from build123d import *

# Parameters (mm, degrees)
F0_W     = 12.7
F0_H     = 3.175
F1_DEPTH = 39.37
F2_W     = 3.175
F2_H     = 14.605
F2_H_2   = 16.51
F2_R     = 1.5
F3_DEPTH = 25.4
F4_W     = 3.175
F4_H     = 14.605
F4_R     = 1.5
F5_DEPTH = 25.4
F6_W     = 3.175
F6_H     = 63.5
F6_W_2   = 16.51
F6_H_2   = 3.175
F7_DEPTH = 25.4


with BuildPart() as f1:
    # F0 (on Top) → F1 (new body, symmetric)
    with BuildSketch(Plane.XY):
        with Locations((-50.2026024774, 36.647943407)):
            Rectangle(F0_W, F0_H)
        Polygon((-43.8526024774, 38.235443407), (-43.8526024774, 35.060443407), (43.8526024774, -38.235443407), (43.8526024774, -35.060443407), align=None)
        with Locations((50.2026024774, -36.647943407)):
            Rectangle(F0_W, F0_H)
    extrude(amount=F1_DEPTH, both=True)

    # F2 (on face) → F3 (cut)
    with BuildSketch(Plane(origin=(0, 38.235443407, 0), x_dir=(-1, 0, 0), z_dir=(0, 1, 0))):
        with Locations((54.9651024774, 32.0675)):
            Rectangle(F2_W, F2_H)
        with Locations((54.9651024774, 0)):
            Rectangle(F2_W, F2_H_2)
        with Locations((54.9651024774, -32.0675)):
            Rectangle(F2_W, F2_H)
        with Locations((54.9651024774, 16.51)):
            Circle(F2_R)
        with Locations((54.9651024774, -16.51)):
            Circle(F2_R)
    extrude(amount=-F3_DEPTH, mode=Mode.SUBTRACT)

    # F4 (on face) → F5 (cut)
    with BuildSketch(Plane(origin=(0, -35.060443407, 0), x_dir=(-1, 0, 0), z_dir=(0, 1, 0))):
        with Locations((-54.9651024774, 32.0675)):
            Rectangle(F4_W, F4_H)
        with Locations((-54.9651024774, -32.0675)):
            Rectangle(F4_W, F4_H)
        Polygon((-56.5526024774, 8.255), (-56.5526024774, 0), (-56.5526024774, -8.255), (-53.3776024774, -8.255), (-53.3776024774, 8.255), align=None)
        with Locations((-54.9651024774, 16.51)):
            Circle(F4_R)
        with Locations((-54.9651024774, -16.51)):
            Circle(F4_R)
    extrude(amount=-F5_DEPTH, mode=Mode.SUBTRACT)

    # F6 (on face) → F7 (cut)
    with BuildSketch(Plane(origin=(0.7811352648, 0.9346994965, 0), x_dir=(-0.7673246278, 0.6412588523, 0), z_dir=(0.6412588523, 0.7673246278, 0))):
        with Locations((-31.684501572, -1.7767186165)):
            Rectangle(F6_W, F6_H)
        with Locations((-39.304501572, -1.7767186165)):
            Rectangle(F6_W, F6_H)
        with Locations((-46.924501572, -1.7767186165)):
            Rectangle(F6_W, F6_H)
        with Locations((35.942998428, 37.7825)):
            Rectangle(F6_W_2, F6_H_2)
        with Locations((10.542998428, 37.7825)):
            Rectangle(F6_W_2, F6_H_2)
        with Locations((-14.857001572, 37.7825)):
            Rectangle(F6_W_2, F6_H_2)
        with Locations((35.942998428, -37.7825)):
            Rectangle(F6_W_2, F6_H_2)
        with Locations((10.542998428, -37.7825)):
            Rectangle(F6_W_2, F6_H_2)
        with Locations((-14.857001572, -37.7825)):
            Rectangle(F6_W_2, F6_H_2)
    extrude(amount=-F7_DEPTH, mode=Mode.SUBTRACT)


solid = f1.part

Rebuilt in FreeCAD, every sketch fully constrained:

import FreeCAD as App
import Part
import Sketcher
Q = App.Units.Quantity


def add_polygon(sketch, points):
    """Adds a closed chain of lines whose ends are joined by coincident constraints."""
    first, n = sketch.GeometryCount, len(points)
    for a, b in zip(points, points[1:] + points[:1]):
        sketch.addGeometry(Part.LineSegment(App.Vector(*a, 0), App.Vector(*b, 0)), False)
    for i in range(n):
        sketch.addConstraint(Sketcher.Constraint("Coincident", first + i, 2, first + (i + 1) % n, 1))

doc = App.newDocument("Part")
body = doc.addObject("PartDesign::Body", "Body")

# Sketch on XY plane
sketch1 = body.newObject("Sketcher::SketchObject", "Sketch")
sketch1.AttachmentSupport = (doc.getObject("XY_Plane"), [""])
sketch1.MapMode = "FlatFace"
add_polygon(sketch1, [(-56.6, 38.2), (-56.6, 35.1), (-43.9, 35.1), (43.9, -38.2), (56.6, -38.2), (56.6, -35.1), (43.9, -35.1), (-43.9, 38.2)])  # lines 0-7
sketch1.addConstraint([
    Sketcher.Constraint("Vertical", 0),
    Sketcher.Constraint("Horizontal", 1),
    Sketcher.Constraint("Horizontal", 3),
    Sketcher.Constraint("Vertical", 4),
    Sketcher.Constraint("Horizontal", 5),
    Sketcher.Constraint("Horizontal", 7),
    Sketcher.Constraint("Symmetric", 0, 2, 4, 2, -1, 1),
    Sketcher.Constraint("Symmetric", 2, 2, 6, 2, -1, 1),
    Sketcher.Constraint("Parallel", 2, 6),
    Sketcher.Constraint("Vertical", 2, 2, 5, 2),
    Sketcher.Constraint("DistanceX", 1, 1, 1, 2, Q("0.5 in")),
    Sketcher.Constraint("Distance", 2, Q("4.5 in")),
    Sketcher.Constraint("DistanceY", 0, 2, 0, 1, Q("0.125 in")),
    Sketcher.Constraint("DistanceX", 0, 2, -1, 1, 56.552602),
])
pad1 = body.newObject("PartDesign::Pad", "Pad")
pad1.Profile = sketch1
pad1.Length = Q("3.1 in")
pad1.Midplane = True

# Sketch on XZ plane
sketch2 = body.newObject("Sketcher::SketchObject", "Sketch001")
sketch2.AttachmentSupport = (doc.getObject("XZ_Plane"), [""])
sketch2.MapMode = "FlatFace"
sketch2.AttachmentOffset = App.Placement(App.Vector(0, 0, -38.235443), App.Rotation())
add_polygon(sketch2, [(-53.4, 39.4), (-53.4, 24.8), (-56.6, 24.8), (-56.6, 39.4)])  # lines 0-3
add_polygon(sketch2, [(-53.4, 8.3), (-53.4, -8.3), (-56.6, -8.3), (-56.6, 8.3)])  # lines 4-7
add_polygon(sketch2, [(-53.4, -24.8), (-53.4, -39.4), (-56.6, -39.4), (-56.6, -24.8)])  # lines 8-11
sketch2.addGeometry(Part.Circle(App.Vector(-55, 16.5, 0), App.Vector(0, 0, 1), 1.5), False)  # 12
sketch2.addGeometry(Part.Circle(App.Vector(-55, -16.5, 0), App.Vector(0, 0, 1), 1.5), False)  # 13
sketch2.addConstraint([
    Sketcher.Constraint("Vertical", 0),
    Sketcher.Constraint("Horizontal", 1),
    Sketcher.Constraint("Vertical", 2),
    Sketcher.Constraint("Horizontal", 3),
    Sketcher.Constraint("Vertical", 4),
    Sketcher.Constraint("Horizontal", 5),
    Sketcher.Constraint("Vertical", 6),
    Sketcher.Constraint("Horizontal", 7),
    Sketcher.Constraint("Vertical", 8),
    Sketcher.Constraint("Horizontal", 9),
    Sketcher.Constraint("Vertical", 10),
    Sketcher.Constraint("Horizontal", 11),
    Sketcher.Constraint("Equal", 12, 13),
    Sketcher.Constraint("Symmetric", 12, 3, 13, 3, -1),
    Sketcher.Constraint("Symmetric", 3, 2, 8, 2, -1),
    Sketcher.Constraint("Symmetric", 1, 2, 10, 2, -1),
    Sketcher.Constraint("Vertical", 3, 2, 4, 2),
    Sketcher.Constraint("Vertical", 2, 2, 5, 2),
    Sketcher.Constraint("DistanceY", 4, 2, 4, 1, Q("0.65 in")),
    Sketcher.Constraint("DistanceY", 13, 3, 12, 3, Q("1.3 in")),
    Sketcher.Constraint("DistanceY", 12, 3, 2, 2, Q("0.9 in")),
    Sketcher.Constraint("DistanceY", 4, 2, 0, 2, Q("1.3 in")),
    Sketcher.Constraint("Diameter", 12, 3.0),
    Sketcher.Constraint("DistanceX", 1, 2, 1, 1, Q("0.125 in")),
    Sketcher.Constraint("DistanceY", 0, 2, 0, 1, Q("0.575 in")),
    Sketcher.Constraint("DistanceX", 12, 3, 0, 2, Q("0.0625 in")),
    Sketcher.Constraint("DistanceX", 12, 3, -1, 1, 54.965102),
])
pocket1 = body.newObject("PartDesign::Pocket", "Pocket")
pocket1.Profile = sketch2
pocket1.Length = Q("1 in")
pocket1.Reversed = True

# Sketch on XZ plane
sketch3 = body.newObject("Sketcher::SketchObject", "Sketch002")
sketch3.AttachmentSupport = (doc.getObject("XZ_Plane"), [""])
sketch3.MapMode = "FlatFace"
sketch3.AttachmentOffset = App.Placement(App.Vector(0, 0, 35.060443), App.Rotation())
add_polygon(sketch3, [(56.6, 39.4), (56.6, 24.8), (53.4, 24.8), (53.4, 39.4)])  # lines 0-3
add_polygon(sketch3, [(56.6, -24.8), (56.6, -39.4), (53.4, -39.4), (53.4, -24.8)])  # lines 4-7
add_polygon(sketch3, [(56.6, 8.3), (56.6, -8.3), (53.4, -8.3), (53.4, 8.3)])  # lines 8-11
sketch3.addGeometry(Part.Circle(App.Vector(55, 16.5, 0), App.Vector(0, 0, 1), 1.5), False)  # 12
sketch3.addGeometry(Part.Circle(App.Vector(55, -16.5, 0), App.Vector(0, 0, 1), 1.5), False)  # 13
sketch3.addConstraint([
    Sketcher.Constraint("Vertical", 0),
    Sketcher.Constraint("Horizontal", 1),
    Sketcher.Constraint("Vertical", 2),
    Sketcher.Constraint("Horizontal", 3),
    Sketcher.Constraint("Vertical", 4),
    Sketcher.Constraint("Horizontal", 5),
    Sketcher.Constraint("Vertical", 6),
    Sketcher.Constraint("Horizontal", 7),
    Sketcher.Constraint("Vertical", 8),
    Sketcher.Constraint("Horizontal", 9),
    Sketcher.Constraint("Vertical", 10),
    Sketcher.Constraint("Horizontal", 11),
    Sketcher.Constraint("Equal", 12, 13),
    Sketcher.Constraint("Symmetric", 12, 3, 13, 3, -1),
    Sketcher.Constraint("Symmetric", 3, 2, 4, 2, -1),
    Sketcher.Constraint("Symmetric", 1, 2, 6, 2, -1),
    Sketcher.Constraint("Vertical", 7, 2, 8, 2),
    Sketcher.Constraint("Vertical", 6, 2, 9, 2),
    Sketcher.Constraint("DistanceY", 8, 2, 8, 1, Q("0.65 in")),
    Sketcher.Constraint("DistanceY", 13, 3, 12, 3, Q("1.3 in")),
    Sketcher.Constraint("DistanceY", 12, 3, 2, 2, Q("0.9 in")),
    Sketcher.Constraint("Diameter", 12, 3.0),
    Sketcher.Constraint("DistanceX", 1, 2, 1, 1, Q("0.125 in")),
    Sketcher.Constraint("DistanceY", 0, 2, 0, 1, Q("0.575 in")),
    Sketcher.Constraint("DistanceY", 7, 2, 8, 2, Q("0.65 in")),
    Sketcher.Constraint("DistanceX", 12, 3, 0, 2, Q("0.0625 in")),
    Sketcher.Constraint("DistanceX", -1, 1, 12, 3, 54.965102),
])
pocket2 = body.newObject("PartDesign::Pocket", "Pocket001")
pocket2.Profile = sketch3
pocket2.Length = Q("1 in")
pocket2.Reversed = True

# Sketch on an angled plane
sketch4 = body.newObject("Sketcher::SketchObject", "Sketch003")
sketch4.Placement = App.Placement(App.Vector(0.781135, 0.934699, 0), App.Rotation(App.Vector(-0.767324628, 0.641258852, 0), App.Vector(0, 0, 1), App.Vector(0.641258852, 0.767324628, 0), "ZXY"))
add_polygon(sketch4, [(-33.3, 30), (-33.3, -33.5), (-30.1, -33.5), (-30.1, 30)])  # lines 0-3
add_polygon(sketch4, [(-40.9, 30), (-40.9, -33.5), (-37.7, -33.5), (-37.7, 30)])  # lines 4-7
add_polygon(sketch4, [(-48.5, 30), (-48.5, -33.5), (-45.3, -33.5), (-45.3, 30)])  # lines 8-11
add_polygon(sketch4, [(27.7, 39.4), (27.7, 36.2), (44.2, 36.2), (44.2, 39.4)])  # lines 12-15
add_polygon(sketch4, [(2.3, 39.4), (2.3, 36.2), (18.8, 36.2), (18.8, 39.4)])  # lines 16-19
add_polygon(sketch4, [(-23.1, 39.4), (-23.1, 36.2), (-6.6, 36.2), (-6.6, 39.4)])  # lines 20-23
add_polygon(sketch4, [(27.7, -36.2), (27.7, -39.4), (44.2, -39.4), (44.2, -36.2)])  # lines 24-27
add_polygon(sketch4, [(2.3, -36.2), (2.3, -39.4), (18.8, -39.4), (18.8, -36.2)])  # lines 28-31
add_polygon(sketch4, [(-23.1, -36.2), (-23.1, -39.4), (-6.6, -39.4), (-6.6, -36.2)])  # lines 32-35
sketch4.addConstraint([
    Sketcher.Constraint("Vertical", 0),
    Sketcher.Constraint("Horizontal", 1),
    Sketcher.Constraint("Vertical", 2),
    Sketcher.Constraint("Horizontal", 3),
    Sketcher.Constraint("Vertical", 4),
    Sketcher.Constraint("Horizontal", 5),
    Sketcher.Constraint("Vertical", 6),
    Sketcher.Constraint("Horizontal", 7),
    Sketcher.Constraint("Vertical", 8),
    Sketcher.Constraint("Horizontal", 9),
    Sketcher.Constraint("Vertical", 10),
    Sketcher.Constraint("Horizontal", 11),
    Sketcher.Constraint("Vertical", 12),
    Sketcher.Constraint("Horizontal", 13),
    Sketcher.Constraint("Vertical", 14),
    Sketcher.Constraint("Horizontal", 15),
    Sketcher.Constraint("Vertical", 16),
    Sketcher.Constraint("Horizontal", 17),
    Sketcher.Constraint("Vertical", 18),
    Sketcher.Constraint("Horizontal", 19),
    Sketcher.Constraint("Vertical", 20),
    Sketcher.Constraint("Horizontal", 21),
    Sketcher.Constraint("Vertical", 22),
    Sketcher.Constraint("Horizontal", 23),
    Sketcher.Constraint("Vertical", 24),
    Sketcher.Constraint("Horizontal", 25),
    Sketcher.Constraint("Vertical", 26),
    Sketcher.Constraint("Horizontal", 27),
    Sketcher.Constraint("Vertical", 28),
    Sketcher.Constraint("Horizontal", 29),
    Sketcher.Constraint("Vertical", 30),
    Sketcher.Constraint("Horizontal", 31),
    Sketcher.Constraint("Vertical", 32),
    Sketcher.Constraint("Horizontal", 33),
    Sketcher.Constraint("Vertical", 34),
    Sketcher.Constraint("Horizontal", 35),
    Sketcher.Constraint("Symmetric", 15, 2, 24, 2, -1),
    Sketcher.Constraint("Symmetric", 13, 2, 26, 2, -1),
    Sketcher.Constraint("Symmetric", 19, 2, 28, 2, -1),
    Sketcher.Constraint("Symmetric", 17, 2, 30, 2, -1),
    Sketcher.Constraint("Symmetric", 23, 2, 32, 2, -1),
    Sketcher.Constraint("Symmetric", 21, 2, 34, 2, -1),
    Sketcher.Constraint("Horizontal", 1, 2, 4, 2),
    Sketcher.Constraint("Horizontal", 3, 2, 6, 2),
    Sketcher.Constraint("Horizontal", 5, 2, 8, 2),
    Sketcher.Constraint("Horizontal", 7, 2, 10, 2),
    Sketcher.Constraint("Horizontal", 13, 2, 16, 2),
    Sketcher.Constraint("Horizontal", 15, 2, 18, 2),
    Sketcher.Constraint("Horizontal", 17, 2, 20, 2),
    Sketcher.Constraint("Horizontal", 19, 2, 22, 2),
    Sketcher.Constraint("Equal", 3, 5),
    Sketcher.Constraint("Equal", 7, 9),
    Sketcher.Constraint("Equal", 15, 17),
    Sketcher.Constraint("Equal", 19, 21),
    Sketcher.Constraint("Equal", 11, 12),
    Sketcher.Constraint("DistanceY", 0, 2, 0, 1, Q("2.5 in")),
    Sketcher.Constraint("DistanceX", 16, 2, 12, 2, Q("1 in")),
    Sketcher.Constraint("DistanceX", 21, 2, 17, 2, Q("1 in")),
    Sketcher.Constraint("DistanceX", 13, 1, 13, 2, Q("0.65 in")),
    Sketcher.Constraint("DistanceX", 4, 2, 0, 2, Q("0.3 in")),
    Sketcher.Constraint("DistanceX", 8, 2, 4, 2, Q("0.3 in")),
    Sketcher.Constraint("DistanceX", 3, 2, 12, 2, Q("2.4 in")),
    Sketcher.Constraint("DistanceX", 1, 1, 1, 2, Q("0.125 in")),
    Sketcher.Constraint("DistanceY", -1, 1, 14, 2, Q("1.55 in")),
    Sketcher.Constraint("DistanceX", 0, 2, -1, 1, 33.272002),
    Sketcher.Constraint("DistanceY", 0, 2, -1, 1, 33.526719),
])
pocket3 = body.newObject("PartDesign::Pocket", "Pocket002")
pocket3.Profile = sketch4
pocket3.Length = Q("1 in")

doc.recompute()
